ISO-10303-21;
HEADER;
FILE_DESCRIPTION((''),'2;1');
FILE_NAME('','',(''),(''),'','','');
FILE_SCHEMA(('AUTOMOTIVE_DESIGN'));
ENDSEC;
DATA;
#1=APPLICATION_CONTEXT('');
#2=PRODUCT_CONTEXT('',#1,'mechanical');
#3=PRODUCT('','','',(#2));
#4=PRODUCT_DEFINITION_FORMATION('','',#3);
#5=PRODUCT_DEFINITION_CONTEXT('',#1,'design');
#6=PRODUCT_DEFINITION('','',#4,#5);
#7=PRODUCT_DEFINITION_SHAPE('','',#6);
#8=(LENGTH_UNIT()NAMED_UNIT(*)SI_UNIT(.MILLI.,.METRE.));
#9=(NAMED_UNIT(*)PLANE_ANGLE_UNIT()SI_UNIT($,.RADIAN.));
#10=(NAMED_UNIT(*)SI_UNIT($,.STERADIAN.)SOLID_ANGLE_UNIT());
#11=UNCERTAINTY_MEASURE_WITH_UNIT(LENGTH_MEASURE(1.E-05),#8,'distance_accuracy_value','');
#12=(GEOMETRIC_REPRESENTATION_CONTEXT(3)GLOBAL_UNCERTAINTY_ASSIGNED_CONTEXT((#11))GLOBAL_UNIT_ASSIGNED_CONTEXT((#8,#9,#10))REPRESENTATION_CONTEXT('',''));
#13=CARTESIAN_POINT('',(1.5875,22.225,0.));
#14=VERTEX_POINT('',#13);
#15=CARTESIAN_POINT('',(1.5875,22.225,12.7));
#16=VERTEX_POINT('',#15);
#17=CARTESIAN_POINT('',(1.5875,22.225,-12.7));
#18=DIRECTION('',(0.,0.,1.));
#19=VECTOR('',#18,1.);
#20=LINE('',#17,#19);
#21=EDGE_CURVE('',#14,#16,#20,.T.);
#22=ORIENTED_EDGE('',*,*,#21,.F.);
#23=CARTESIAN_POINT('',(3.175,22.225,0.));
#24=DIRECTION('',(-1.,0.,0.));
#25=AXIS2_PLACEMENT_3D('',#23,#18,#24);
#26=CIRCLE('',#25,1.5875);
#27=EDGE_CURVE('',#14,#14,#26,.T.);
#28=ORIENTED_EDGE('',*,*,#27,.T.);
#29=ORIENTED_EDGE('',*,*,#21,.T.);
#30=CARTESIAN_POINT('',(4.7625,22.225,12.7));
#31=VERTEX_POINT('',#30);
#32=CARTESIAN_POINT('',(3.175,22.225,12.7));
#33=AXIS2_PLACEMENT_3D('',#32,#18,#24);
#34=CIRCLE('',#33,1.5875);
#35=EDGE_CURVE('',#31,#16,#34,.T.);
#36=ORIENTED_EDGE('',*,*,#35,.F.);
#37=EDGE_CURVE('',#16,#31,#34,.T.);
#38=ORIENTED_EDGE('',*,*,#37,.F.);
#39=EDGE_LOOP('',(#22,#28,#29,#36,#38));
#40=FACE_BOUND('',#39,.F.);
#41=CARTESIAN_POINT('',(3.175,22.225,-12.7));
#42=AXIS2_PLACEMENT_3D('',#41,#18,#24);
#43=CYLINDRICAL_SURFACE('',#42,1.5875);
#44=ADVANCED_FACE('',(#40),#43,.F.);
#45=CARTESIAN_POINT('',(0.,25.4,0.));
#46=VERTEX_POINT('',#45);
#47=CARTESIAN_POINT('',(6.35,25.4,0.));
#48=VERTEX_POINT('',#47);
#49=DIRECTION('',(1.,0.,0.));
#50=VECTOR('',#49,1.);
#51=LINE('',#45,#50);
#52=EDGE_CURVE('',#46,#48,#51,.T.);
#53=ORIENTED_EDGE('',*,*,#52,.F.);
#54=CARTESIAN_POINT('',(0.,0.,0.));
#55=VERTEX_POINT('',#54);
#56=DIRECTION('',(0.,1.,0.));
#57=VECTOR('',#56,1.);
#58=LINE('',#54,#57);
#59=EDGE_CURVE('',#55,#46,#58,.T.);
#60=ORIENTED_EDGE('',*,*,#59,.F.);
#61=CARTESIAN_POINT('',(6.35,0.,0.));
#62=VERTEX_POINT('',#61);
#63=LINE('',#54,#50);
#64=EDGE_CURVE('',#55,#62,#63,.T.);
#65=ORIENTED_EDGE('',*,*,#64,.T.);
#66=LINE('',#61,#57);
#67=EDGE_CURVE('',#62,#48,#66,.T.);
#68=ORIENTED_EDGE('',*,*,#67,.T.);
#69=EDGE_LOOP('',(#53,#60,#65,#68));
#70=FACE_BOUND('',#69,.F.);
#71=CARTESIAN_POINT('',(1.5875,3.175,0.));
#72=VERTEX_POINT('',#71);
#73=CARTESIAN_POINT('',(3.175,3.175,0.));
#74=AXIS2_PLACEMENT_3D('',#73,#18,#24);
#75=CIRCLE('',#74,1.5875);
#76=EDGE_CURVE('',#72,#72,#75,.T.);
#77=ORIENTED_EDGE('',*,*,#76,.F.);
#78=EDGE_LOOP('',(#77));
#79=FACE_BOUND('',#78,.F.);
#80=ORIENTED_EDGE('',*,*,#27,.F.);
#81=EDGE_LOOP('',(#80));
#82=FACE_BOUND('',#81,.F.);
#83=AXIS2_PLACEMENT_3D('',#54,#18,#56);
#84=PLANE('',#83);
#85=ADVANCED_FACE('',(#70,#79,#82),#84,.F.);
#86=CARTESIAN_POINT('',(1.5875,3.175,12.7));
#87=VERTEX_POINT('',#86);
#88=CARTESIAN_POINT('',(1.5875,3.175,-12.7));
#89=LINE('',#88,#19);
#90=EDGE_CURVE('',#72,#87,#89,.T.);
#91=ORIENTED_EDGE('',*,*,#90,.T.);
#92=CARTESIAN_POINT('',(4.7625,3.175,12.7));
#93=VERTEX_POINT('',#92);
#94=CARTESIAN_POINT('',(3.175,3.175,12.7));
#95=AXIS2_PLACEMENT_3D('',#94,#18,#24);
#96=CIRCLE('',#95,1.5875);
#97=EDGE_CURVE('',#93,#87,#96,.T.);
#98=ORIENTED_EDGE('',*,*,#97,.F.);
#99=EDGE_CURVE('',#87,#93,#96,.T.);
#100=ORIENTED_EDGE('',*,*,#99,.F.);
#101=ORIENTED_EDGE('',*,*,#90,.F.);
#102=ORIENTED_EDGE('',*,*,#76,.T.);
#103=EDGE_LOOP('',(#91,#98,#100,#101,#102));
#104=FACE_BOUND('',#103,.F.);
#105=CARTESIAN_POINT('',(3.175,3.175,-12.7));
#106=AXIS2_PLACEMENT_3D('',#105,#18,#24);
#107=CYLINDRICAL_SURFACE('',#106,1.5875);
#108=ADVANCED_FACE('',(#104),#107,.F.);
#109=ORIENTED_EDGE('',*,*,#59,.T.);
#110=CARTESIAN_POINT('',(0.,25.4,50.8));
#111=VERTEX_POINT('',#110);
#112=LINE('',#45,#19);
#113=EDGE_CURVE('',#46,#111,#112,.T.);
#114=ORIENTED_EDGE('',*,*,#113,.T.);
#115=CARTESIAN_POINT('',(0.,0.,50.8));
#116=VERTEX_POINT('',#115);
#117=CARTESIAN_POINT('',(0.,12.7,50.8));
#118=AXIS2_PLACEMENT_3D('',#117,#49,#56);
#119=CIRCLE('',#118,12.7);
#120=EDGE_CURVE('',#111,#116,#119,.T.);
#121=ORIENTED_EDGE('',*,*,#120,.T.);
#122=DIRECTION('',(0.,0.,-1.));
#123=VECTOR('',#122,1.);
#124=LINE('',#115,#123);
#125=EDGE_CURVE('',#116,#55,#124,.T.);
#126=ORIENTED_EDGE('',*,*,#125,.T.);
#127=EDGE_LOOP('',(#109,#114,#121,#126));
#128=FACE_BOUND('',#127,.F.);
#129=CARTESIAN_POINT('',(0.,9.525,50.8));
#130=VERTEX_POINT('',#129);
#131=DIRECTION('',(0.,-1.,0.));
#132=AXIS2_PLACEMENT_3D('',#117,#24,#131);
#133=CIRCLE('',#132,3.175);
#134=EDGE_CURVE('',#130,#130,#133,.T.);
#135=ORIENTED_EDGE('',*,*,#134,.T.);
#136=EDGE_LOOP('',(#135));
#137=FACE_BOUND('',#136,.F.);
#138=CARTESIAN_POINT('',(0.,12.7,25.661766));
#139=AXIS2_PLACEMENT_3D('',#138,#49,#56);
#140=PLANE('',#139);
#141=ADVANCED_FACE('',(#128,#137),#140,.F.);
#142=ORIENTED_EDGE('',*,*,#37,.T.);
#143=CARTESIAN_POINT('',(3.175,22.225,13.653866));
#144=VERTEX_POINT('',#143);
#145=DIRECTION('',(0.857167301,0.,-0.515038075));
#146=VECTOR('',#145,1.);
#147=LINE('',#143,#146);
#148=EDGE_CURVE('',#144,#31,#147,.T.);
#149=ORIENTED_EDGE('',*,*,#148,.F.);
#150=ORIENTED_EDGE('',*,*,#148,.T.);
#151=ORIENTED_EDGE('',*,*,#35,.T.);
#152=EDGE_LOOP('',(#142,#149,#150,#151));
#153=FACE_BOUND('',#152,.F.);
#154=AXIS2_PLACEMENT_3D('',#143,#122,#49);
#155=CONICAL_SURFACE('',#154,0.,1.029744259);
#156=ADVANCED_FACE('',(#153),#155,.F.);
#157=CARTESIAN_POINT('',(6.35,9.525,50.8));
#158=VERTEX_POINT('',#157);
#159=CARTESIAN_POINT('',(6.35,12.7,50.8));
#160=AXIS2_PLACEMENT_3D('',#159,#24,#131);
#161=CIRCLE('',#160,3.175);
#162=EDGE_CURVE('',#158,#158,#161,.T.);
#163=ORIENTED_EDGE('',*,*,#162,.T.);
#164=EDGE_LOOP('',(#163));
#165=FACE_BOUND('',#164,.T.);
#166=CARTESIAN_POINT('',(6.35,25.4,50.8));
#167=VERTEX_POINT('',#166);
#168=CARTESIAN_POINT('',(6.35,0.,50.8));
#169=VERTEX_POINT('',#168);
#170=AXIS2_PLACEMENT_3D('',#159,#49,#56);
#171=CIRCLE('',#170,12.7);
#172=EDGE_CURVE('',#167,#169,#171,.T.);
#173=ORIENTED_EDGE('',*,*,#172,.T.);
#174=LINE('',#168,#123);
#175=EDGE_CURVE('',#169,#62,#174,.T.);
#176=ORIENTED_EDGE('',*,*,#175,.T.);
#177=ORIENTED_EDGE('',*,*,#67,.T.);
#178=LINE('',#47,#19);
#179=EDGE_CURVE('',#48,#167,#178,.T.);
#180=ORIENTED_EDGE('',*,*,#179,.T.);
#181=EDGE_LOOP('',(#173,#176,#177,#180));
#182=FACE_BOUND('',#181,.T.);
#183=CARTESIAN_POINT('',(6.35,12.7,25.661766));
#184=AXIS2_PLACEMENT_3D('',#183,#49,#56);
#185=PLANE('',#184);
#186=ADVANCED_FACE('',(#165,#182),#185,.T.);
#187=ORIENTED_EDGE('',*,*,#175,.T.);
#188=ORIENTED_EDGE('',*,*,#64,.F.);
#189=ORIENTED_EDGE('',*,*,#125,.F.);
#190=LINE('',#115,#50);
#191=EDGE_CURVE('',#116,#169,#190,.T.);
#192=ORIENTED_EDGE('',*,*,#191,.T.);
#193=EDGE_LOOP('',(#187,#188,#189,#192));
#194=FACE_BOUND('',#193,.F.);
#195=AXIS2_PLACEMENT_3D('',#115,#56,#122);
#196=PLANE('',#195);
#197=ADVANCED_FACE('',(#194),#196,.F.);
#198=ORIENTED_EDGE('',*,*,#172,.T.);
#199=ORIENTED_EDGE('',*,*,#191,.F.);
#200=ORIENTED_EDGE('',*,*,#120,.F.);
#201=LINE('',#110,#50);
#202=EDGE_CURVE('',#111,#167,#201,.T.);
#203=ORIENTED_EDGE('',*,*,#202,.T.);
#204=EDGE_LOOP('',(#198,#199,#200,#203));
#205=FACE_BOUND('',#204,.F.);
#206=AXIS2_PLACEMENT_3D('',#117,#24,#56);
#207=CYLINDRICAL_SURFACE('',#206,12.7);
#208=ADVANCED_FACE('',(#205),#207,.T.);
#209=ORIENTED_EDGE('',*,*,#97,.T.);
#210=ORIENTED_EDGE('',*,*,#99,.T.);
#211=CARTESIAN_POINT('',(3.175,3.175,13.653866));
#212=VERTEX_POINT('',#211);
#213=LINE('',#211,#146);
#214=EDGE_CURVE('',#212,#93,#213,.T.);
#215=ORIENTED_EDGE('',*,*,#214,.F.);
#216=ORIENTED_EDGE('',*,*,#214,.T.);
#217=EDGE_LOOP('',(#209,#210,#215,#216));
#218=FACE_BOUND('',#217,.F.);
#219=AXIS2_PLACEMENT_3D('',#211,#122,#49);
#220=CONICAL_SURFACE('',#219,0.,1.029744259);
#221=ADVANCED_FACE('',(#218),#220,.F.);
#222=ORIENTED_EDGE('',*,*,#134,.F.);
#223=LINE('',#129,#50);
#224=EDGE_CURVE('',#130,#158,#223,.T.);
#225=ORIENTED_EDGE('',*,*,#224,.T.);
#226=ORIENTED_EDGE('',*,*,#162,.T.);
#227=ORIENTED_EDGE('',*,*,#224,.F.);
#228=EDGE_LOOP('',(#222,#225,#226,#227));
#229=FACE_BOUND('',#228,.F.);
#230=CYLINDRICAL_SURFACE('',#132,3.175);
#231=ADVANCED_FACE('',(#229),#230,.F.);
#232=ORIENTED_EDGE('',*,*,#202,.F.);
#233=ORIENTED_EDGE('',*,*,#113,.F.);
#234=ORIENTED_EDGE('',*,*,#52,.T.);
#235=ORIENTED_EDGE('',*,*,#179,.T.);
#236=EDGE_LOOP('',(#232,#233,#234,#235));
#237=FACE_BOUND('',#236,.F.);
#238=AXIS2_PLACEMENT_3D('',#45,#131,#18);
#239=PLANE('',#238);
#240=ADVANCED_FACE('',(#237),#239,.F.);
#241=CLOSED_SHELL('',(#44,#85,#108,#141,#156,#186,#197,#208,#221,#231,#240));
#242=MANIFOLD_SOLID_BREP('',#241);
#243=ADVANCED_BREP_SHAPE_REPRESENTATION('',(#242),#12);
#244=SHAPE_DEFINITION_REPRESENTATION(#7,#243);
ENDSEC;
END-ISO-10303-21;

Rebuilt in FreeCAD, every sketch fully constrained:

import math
import FreeCAD as App
import Part
import Sketcher

V = App.Vector
Q = App.Units.Quantity

doc = App.newDocument("Part")
body = doc.addObject("PartDesign::Body", "Body")

# Sketch on YZ plane
sketch1 = body.newObject("Sketcher::SketchObject", "Sketch")
sketch1.AttachmentSupport = (doc.getObject("YZ_Plane"), [""])
sketch1.MapMode = "FlatFace"
sketch1.addGeometry([
    Part.LineSegment(V(0, 50.8, 0), V(0, 0, 0)),  # 0
    Part.LineSegment(V(0, 0, 0), V(25.4, 0, 0)),  # 1
    Part.LineSegment(V(25.4, 0, 0), V(25.4, 50.8, 0)),  # 2
    Part.ArcOfCircle(Part.Circle(V(12.7, 50.8, 0), V(0, 0, 1), 12.7), math.radians(0), math.radians(180)),  # 3
    Part.Circle(V(12.7, 50.8, 0), V(0, 0, 1), 3.2),  # 4
], False)
sketch1.addConstraint([
    Sketcher.Constraint("Coincident", 0, 2, 1, 1),
    Sketcher.Constraint("Coincident", 1, 2, 2, 1),
    Sketcher.Constraint("Tangent", 2, 2, 3, 1),
    Sketcher.Constraint("Tangent", 3, 2, 0, 1),
    Sketcher.Constraint("Vertical", 0),
    Sketcher.Constraint("Horizontal", 1),
    Sketcher.Constraint("Vertical", 2),
    Sketcher.Constraint("Coincident", 0, 2, -1, 1),
    Sketcher.Constraint("Coincident", 4, 3, 3, 3),
    Sketcher.Constraint("Radius", 3, Q("0.5 in")),
    Sketcher.Constraint("Diameter", 4, Q("0.25 in")),
    Sketcher.Constraint("DistanceY", 0, 2, 0, 1, Q("2 in")),
])
pad1 = body.newObject("PartDesign::Pad", "Pad")
pad1.Profile = sketch1
pad1.Length = Q("0.25 in")

# Sketch on XY plane
sketch2 = body.newObject("Sketcher::SketchObject", "Sketch001")
sketch2.AttachmentSupport = (doc.getObject("XY_Plane"), [""])
sketch2.MapMode = "FlatFace"
sketch2.addGeometry([
    Part.Circle(V(3.2, 3.2, 0), V(0, 0, 1), 1.6),
    Part.Circle(V(3.2, 22.2, 0), V(0, 0, 1), 1.6),
], False)
sketch2.addConstraint([
    Sketcher.Constraint("Equal", 0, 1),
    Sketcher.Constraint("Vertical", 0, 3, 1, 3),
    Sketcher.Constraint("Diameter", 0, Q("0.125 in")),
    Sketcher.Constraint("DistanceY", 0, 3, 1, 3, Q("0.75 in")),
    Sketcher.Constraint("DistanceX", -1, 1, 0, 3, Q("0.125 in")),
    Sketcher.Constraint("DistanceY", -1, 1, 0, 3, Q("0.125 in")),
])
doc.recompute()
hole = body.newObject("PartDesign::Hole", "Hole")
hole.Profile = sketch2
hole.ThreadType = "None"
hole.Diameter = Q("0.125 in")
hole.DepthType = "Dimension"
hole.Depth = Q("0.5 in")
hole.DrillPoint = "Angled"
hole.DrillPointAngle = 118
hole.Reversed = True

doc.recompute()
